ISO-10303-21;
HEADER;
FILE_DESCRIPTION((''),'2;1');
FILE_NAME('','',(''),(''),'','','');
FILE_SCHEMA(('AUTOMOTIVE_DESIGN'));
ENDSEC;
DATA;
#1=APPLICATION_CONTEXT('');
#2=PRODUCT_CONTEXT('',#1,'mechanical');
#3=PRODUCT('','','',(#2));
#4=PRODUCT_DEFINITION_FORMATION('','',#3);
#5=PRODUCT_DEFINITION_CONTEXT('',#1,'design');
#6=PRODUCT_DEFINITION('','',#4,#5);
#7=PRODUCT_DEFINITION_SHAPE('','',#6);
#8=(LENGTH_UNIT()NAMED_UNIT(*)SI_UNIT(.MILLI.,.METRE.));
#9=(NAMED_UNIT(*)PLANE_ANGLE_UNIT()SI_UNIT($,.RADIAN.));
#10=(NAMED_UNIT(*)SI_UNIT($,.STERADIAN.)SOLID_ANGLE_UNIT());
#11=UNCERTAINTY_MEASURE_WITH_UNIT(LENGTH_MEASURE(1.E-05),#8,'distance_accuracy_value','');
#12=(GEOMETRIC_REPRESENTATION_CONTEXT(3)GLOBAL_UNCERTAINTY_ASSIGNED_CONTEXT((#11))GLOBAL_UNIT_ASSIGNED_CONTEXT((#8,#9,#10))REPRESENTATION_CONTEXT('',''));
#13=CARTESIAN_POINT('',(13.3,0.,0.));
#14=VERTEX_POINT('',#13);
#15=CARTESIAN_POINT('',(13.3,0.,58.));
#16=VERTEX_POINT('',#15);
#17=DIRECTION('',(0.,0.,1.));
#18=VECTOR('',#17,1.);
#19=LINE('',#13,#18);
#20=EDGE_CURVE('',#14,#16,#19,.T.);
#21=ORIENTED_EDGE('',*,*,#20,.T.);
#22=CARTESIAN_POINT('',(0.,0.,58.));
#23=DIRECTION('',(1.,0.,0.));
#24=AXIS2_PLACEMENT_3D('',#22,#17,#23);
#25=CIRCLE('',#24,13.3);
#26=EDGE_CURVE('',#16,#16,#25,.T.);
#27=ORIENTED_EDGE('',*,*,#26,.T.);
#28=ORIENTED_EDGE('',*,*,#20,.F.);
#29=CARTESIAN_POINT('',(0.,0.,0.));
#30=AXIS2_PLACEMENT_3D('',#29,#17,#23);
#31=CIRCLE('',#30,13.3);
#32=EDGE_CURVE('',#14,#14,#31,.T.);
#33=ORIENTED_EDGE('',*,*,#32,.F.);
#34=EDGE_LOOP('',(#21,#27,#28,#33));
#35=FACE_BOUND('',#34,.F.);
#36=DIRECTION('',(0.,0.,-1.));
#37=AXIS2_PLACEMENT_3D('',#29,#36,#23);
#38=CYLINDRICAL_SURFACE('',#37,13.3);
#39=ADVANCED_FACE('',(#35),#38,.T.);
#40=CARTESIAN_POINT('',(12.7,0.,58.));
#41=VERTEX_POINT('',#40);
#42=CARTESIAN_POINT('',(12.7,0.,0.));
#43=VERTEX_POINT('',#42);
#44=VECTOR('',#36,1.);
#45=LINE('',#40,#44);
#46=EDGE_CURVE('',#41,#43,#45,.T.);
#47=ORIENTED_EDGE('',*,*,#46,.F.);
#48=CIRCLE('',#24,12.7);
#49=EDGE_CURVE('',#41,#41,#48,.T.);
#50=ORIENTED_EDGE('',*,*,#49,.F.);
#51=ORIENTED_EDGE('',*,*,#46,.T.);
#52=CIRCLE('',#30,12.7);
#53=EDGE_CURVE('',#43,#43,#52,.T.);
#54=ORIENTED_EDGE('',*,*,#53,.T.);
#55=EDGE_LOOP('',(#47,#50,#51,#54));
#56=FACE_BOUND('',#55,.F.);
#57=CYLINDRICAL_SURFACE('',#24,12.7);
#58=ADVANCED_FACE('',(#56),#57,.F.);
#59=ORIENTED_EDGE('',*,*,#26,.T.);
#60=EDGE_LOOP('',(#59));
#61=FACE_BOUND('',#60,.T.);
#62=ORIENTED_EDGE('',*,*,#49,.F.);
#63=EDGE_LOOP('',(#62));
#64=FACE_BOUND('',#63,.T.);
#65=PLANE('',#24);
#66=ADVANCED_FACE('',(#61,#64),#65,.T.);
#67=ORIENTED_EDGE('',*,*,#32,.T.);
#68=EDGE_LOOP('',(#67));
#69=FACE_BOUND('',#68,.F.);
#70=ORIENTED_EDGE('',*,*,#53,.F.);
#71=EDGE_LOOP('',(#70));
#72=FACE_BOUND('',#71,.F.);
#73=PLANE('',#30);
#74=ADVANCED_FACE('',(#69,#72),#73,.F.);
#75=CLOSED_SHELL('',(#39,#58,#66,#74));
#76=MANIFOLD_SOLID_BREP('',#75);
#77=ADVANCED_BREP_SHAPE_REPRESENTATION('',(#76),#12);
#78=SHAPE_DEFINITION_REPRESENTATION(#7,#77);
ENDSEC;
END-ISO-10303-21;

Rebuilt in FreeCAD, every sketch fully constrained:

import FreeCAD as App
import Part
import Sketcher

doc = App.newDocument("Part")
body = doc.addObject("PartDesign::Body", "Body")

# Sketch on XY plane
sketch1 = body.newObject("Sketcher::SketchObject", "Sketch")
sketch1.AttachmentSupport = (doc.getObject("XY_Plane"), [""])
sketch1.MapMode = "FlatFace"
sketch1.addGeometry(Part.Circle(App.Vector(0, 0, 0), App.Vector(0, 0, 1), 13), False)
sketch1.addConstraint(Sketcher.Constraint("Coincident", 0, 3, -1, 1))
sketch1.addConstraint(Sketcher.Constraint("Diameter", 0, 26.6))
pad1 = body.newObject("PartDesign::Pad", "Pad")
pad1.Profile = sketch1
pad1.Length = 58

# Sketch on XY plane
sketch2 = body.newObject("Sketcher::SketchObject", "Sketch001")
sketch2.AttachmentSupport = (doc.getObject("XY_Plane"), [""])
sketch2.MapMode = "FlatFace"
sketch2.AttachmentOffset = App.Placement(App.Vector(0, 0, 58), App.Rotation())
sketch2.addGeometry(Part.Circle(App.Vector(0, 0, 0), App.Vector(0, 0, 1), 13), False)
sketch2.addConstraint(Sketcher.Constraint("Coincident", 0, 3, -1, 1))
sketch2.addConstraint(Sketcher.Constraint("Diameter", 0, 25.4))
pocket1 = body.newObject("PartDesign::Pocket", "Pocket")
pocket1.Profile = sketch2
pocket1.Length = 58

doc.recompute()
